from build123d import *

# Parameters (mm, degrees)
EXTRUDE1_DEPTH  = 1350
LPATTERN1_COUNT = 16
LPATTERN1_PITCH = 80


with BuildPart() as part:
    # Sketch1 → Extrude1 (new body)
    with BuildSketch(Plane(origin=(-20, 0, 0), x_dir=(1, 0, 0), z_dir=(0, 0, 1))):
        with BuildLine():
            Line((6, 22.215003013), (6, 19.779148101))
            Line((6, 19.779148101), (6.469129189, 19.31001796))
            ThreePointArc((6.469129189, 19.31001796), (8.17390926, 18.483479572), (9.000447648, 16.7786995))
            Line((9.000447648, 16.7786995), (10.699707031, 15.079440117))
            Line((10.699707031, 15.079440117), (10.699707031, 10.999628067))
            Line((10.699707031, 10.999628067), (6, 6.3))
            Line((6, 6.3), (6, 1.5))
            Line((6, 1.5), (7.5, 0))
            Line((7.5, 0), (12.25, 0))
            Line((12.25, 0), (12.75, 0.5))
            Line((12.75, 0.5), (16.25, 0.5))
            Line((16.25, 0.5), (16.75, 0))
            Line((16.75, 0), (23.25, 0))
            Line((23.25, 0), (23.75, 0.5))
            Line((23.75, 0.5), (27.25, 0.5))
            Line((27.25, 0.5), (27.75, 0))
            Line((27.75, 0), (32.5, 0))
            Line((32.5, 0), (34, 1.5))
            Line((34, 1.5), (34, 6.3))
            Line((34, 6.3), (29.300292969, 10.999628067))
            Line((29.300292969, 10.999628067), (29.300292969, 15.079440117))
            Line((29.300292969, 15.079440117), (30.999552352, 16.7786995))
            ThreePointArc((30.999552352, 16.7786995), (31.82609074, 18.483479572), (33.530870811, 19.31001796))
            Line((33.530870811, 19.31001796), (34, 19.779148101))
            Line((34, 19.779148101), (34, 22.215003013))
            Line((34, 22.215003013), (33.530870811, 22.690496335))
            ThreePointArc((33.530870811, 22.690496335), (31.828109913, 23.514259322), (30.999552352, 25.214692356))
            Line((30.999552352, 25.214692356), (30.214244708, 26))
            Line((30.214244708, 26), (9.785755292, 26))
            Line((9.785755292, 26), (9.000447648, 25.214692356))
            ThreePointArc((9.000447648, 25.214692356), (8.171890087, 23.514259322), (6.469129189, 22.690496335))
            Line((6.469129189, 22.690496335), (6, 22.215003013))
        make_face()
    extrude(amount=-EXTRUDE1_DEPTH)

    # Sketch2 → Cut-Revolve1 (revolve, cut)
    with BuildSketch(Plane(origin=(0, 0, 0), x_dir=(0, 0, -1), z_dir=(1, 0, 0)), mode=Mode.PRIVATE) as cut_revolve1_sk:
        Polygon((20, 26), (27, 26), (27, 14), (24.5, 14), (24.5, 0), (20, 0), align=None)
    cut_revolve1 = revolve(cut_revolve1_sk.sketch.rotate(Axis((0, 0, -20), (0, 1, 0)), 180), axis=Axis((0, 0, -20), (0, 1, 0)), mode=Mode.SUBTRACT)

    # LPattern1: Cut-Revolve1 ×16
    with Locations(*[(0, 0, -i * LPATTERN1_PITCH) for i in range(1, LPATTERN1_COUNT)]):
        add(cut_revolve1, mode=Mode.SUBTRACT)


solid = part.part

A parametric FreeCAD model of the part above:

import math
import FreeCAD as App
import Part
import Sketcher
from FreeCAD import Vector


def add_polygon(sketch, points):
    """Adds a closed chain of lines whose ends are joined by coincident constraints."""
    first, n = sketch.GeometryCount, len(points)
    for a, b in zip(points, points[1:] + points[:1]):
        sketch.addGeometry(Part.LineSegment(App.Vector(*a, 0), App.Vector(*b, 0)), False)
    for i in range(n):
        sketch.addConstraint(Sketcher.Constraint("Coincident", first + i, 2, first + (i + 1) % n, 1))

doc = App.newDocument("Part")
body = doc.addObject("PartDesign::Body", "Body")

sketch1 = doc.addObject("Sketcher::SketchObject", "Sketch")
body.addObject(sketch1)
sketch1.AttachmentSupport = (doc.XY_Plane, [""])
sketch1.MapMode = "FlatFace"
sketch1.addGeometry(Part.LineSegment(Vector(-14, 22.215003, 0), Vector(-14, 19.779148, 0)), False)
sketch1.addGeometry(Part.LineSegment(Vector(-14, 19.779148, 0), Vector(-13.530871, 19.310018, 0)), False)
sketch1.addGeometry(Part.ArcOfCircle(Part.Circle(Vector(-13.869629, 16.439941, 0), Vector(0, 0, 1), 2.889999), math.radians(6.731535), math.radians(83.268465)), False)
sketch1.addGeometry(Part.LineSegment(Vector(-10.999552, 16.778699, 0), Vector(-9.300293, 15.07944, 0)), False)
sketch1.addGeometry(Part.LineSegment(Vector(-9.300293, 15.07944, 0), Vector(-9.300293, 10.999628, 0)), False)
sketch1.addGeometry(Part.LineSegment(Vector(-9.300293, 10.999628, 0), Vector(-14, 6.3, 0)), False)
sketch1.addGeometry(Part.LineSegment(Vector(-14, 6.3, 0), Vector(-14, 1.5, 0)), False)
sketch1.addGeometry(Part.LineSegment(Vector(-14, 1.5, 0), Vector(-12.5, 0, 0)), False)
sketch1.addGeometry(Part.LineSegment(Vector(-12.5, 0, 0), Vector(-7.75, 0, 0)), False)
sketch1.addGeometry(Part.LineSegment(Vector(-7.75, 0, 0), Vector(-7.25, 0.5, 0)), False)
sketch1.addGeometry(Part.LineSegment(Vector(-7.25, 0.5, 0), Vector(-3.75, 0.5, 0)), False)
sketch1.addGeometry(Part.LineSegment(Vector(-3.75, 0.5, 0), Vector(-3.25, 0, 0)), False)
sketch1.addGeometry(Part.LineSegment(Vector(-3.25, 0, 0), Vector(3.25, 0, 0)), False)
sketch1.addGeometry(Part.LineSegment(Vector(3.25, 0, 0), Vector(3.75, 0.5, 0)), False)
sketch1.addGeometry(Part.LineSegment(Vector(3.75, 0.5, 0), Vector(7.25, 0.5, 0)), False)
sketch1.addGeometry(Part.LineSegment(Vector(7.25, 0.5, 0), Vector(7.75, 0, 0)), False)
sketch1.addGeometry(Part.LineSegment(Vector(7.75, 0, 0), Vector(12.5, 0, 0)), False)
sketch1.addGeometry(Part.LineSegment(Vector(12.5, 0, 0), Vector(14, 1.5, 0)), False)
sketch1.addGeometry(Part.LineSegment(Vector(14, 1.5, 0), Vector(14, 6.3, 0)), False)
sketch1.addGeometry(Part.LineSegment(Vector(14, 6.3, 0), Vector(9.300293, 10.999628, 0)), False)
sketch1.addGeometry(Part.LineSegment(Vector(9.300293, 10.999628, 0), Vector(9.300293, 15.07944, 0)), False)
sketch1.addGeometry(Part.LineSegment(Vector(9.300293, 15.07944, 0), Vector(10.999552, 16.778699, 0)), False)
sketch1.addGeometry(Part.ArcOfCircle(Part.Circle(Vector(13.869629, 16.439941, 0), Vector(0, 0, 1), 2.889999), math.radians(96.731535), math.radians(173.268465)), False)
sketch1.addGeometry(Part.LineSegment(Vector(13.530871, 19.310018, 0), Vector(14, 19.779148, 0)), False)
sketch1.addGeometry(Part.LineSegment(Vector(14, 19.779148, 0), Vector(14, 22.215003, 0)), False)
sketch1.addGeometry(Part.LineSegment(Vector(14, 22.215003, 0), Vector(13.530871, 22.690496, 0)), False)
sketch1.addGeometry(Part.ArcOfCircle(Part.Circle(Vector(13.868767, 25.560674, 0), Vector(0, 0, 1), 2.889999), math.radians(-173.124228), math.radians(-96.71433)), False)
sketch1.addGeometry(Part.LineSegment(Vector(10.999552, 25.214692, 0), Vector(10.214245, 26, 0)), False)
sketch1.addGeometry(Part.LineSegment(Vector(10.214245, 26, 0), Vector(-10.214245, 26, 0)), False)
sketch1.addGeometry(Part.LineSegment(Vector(-10.214245, 26, 0), Vector(-10.999552, 25.214692, 0)), False)
sketch1.addGeometry(Part.ArcOfCircle(Part.Circle(Vector(-13.868767, 25.560674, 0), Vector(0, 0, 1), 2.889999), math.radians(-83.28567), math.radians(-6.875772)), False)
sketch1.addGeometry(Part.LineSegment(Vector(-13.530871, 22.690496, 0), Vector(-14, 22.215003, 0)), False)
sketch1.addConstraint(Sketcher.Constraint("Coincident", 0, 2, 1, 1))
sketch1.addConstraint(Sketcher.Constraint("Coincident", 1, 2, 2, 2))
sketch1.addConstraint(Sketcher.Constraint("Coincident", 2, 1, 3, 1))
sketch1.addConstraint(Sketcher.Constraint("Coincident", 3, 2, 4, 1))
sketch1.addConstraint(Sketcher.Constraint("Coincident", 4, 2, 5, 1))
sketch1.addConstraint(Sketcher.Constraint("Coincident", 5, 2, 6, 1))
sketch1.addConstraint(Sketcher.Constraint("Coincident", 6, 2, 7, 1))
sketch1.addConstraint(Sketcher.Constraint("Coincident", 7, 2, 8, 1))
sketch1.addConstraint(Sketcher.Constraint("Coincident", 8, 2, 9, 1))
sketch1.addConstraint(Sketcher.Constraint("Coincident", 9, 2, 10, 1))
sketch1.addConstraint(Sketcher.Constraint("Coincident", 10, 2, 11, 1))
sketch1.addConstraint(Sketcher.Constraint("Coincident", 11, 2, 12, 1))
sketch1.addConstraint(Sketcher.Constraint("Coincident", 12, 2, 13, 1))
sketch1.addConstraint(Sketcher.Constraint("Coincident", 13, 2, 14, 1))
sketch1.addConstraint(Sketcher.Constraint("Coincident", 14, 2, 15, 1))
sketch1.addConstraint(Sketcher.Constraint("Coincident", 15, 2, 16, 1))
sketch1.addConstraint(Sketcher.Constraint("Coincident", 16, 2, 17, 1))
sketch1.addConstraint(Sketcher.Constraint("Coincident", 17, 2, 18, 1))
sketch1.addConstraint(Sketcher.Constraint("Coincident", 18, 2, 19, 1))
sketch1.addConstraint(Sketcher.Constraint("Coincident", 19, 2, 20, 1))
sketch1.addConstraint(Sketcher.Constraint("Coincident", 20, 2, 21, 1))
sketch1.addConstraint(Sketcher.Constraint("Coincident", 21, 2, 22, 2))
sketch1.addConstraint(Sketcher.Constraint("Coincident", 22, 1, 23, 1))
sketch1.addConstraint(Sketcher.Constraint("Coincident", 23, 2, 24, 1))
sketch1.addConstraint(Sketcher.Constraint("Coincident", 24, 2, 25, 1))
sketch1.addConstraint(Sketcher.Constraint("Coincident", 25, 2, 26, 2))
sketch1.addConstraint(Sketcher.Constraint("Coincident", 26, 1, 27, 1))
sketch1.addConstraint(Sketcher.Constraint("Coincident", 27, 2, 28, 1))
sketch1.addConstraint(Sketcher.Constraint("Coincident", 28, 2, 29, 1))
sketch1.addConstraint(Sketcher.Constraint("Coincident", 29, 2, 30, 2))
sketch1.addConstraint(Sketcher.Constraint("Coincident", 30, 1, 31, 1))
sketch1.addConstraint(Sketcher.Constraint("Coincident", 31, 2, 0, 1))
sketch1.addConstraint(Sketcher.Constraint("Vertical", 0))
sketch1.addConstraint(Sketcher.Constraint("Vertical", 4))
sketch1.addConstraint(Sketcher.Constraint("Vertical", 6))
sketch1.addConstraint(Sketcher.Constraint("Horizontal", 8))
sketch1.addConstraint(Sketcher.Constraint("Horizontal", 10))
sketch1.addConstraint(Sketcher.Constraint("Horizontal", 12))
sketch1.addConstraint(Sketcher.Constraint("Horizontal", 14))
sketch1.addConstraint(Sketcher.Constraint("Horizontal", 16))
sketch1.addConstraint(Sketcher.Constraint("Vertical", 18))
sketch1.addConstraint(Sketcher.Constraint("Vertical", 20))
sketch1.addConstraint(Sketcher.Constraint("Vertical", 24))
sketch1.addConstraint(Sketcher.Constraint("Horizontal", 28))
sketch1.addConstraint(Sketcher.Constraint("Equal", 2, 22))
sketch1.addConstraint(Sketcher.Constraint("Equal", 22, 26))
sketch1.addConstraint(Sketcher.Constraint("Equal", 26, 30))
sketch1.addConstraint(Sketcher.Constraint("Symmetric", 11, 2, 12, 2, -1, 1))
sketch1.addConstraint(Sketcher.Constraint("Symmetric", 8, 2, 15, 2, -1, 1))
sketch1.addConstraint(Sketcher.Constraint("Symmetric", 2, 3, 22, 3, -2))
sketch1.addConstraint(Sketcher.Constraint("Symmetric", 26, 3, 30, 3, -2))
sketch1.addConstraint(Sketcher.Constraint("Symmetric", 10, 2, 13, 2, -2))
sketch1.addConstraint(Sketcher.Constraint("Symmetric", 7, 2, 16, 2, -2))
sketch1.addConstraint(Sketcher.Constraint("Symmetric", 6, 2, 17, 2, -2))
sketch1.addConstraint(Sketcher.Constraint("Symmetric", 4, 2, 19, 2, -2))
sketch1.addConstraint(Sketcher.Constraint("Symmetric", 0, 2, 23, 2, -2))
sketch1.addConstraint(Sketcher.Constraint("Parallel", 1, 3))
sketch1.addConstraint(Sketcher.Constraint("Parallel", 3, 7))
sketch1.addConstraint(Sketcher.Constraint("Perpendicular", 7, 9))
sketch1.addConstraint(Sketcher.Constraint("Perpendicular", 9, 11))
sketch1.addConstraint(Sketcher.Constraint("Perpendicular", 11, 13))
sketch1.addConstraint(Sketcher.Constraint("Perpendicular", 13, 15))
sketch1.addConstraint(Sketcher.Constraint("Parallel", 17, 21))
sketch1.addConstraint(Sketcher.Constraint("Parallel", 21, 23))
sketch1.addConstraint(Sketcher.Constraint("Perpendicular", 23, 27))
sketch1.addConstraint(Sketcher.Constraint("Perpendicular", 27, 29))
sketch1.addConstraint(Sketcher.Constraint("Horizontal", 5, 2, 18, 2))
sketch1.addConstraint(Sketcher.Constraint("Horizontal", 3, 2, 20, 2))
sketch1.addConstraint(Sketcher.Constraint("Horizontal", 26, 1, 29, 2))
sketch1.addConstraint(Sketcher.Constraint("Horizontal", 25, 2, 30, 1))
sketch1.addConstraint(Sketcher.Constraint("Horizontal", 24, 2, 31, 2))
sketch1.addConstraint(Sketcher.Constraint("Vertical", 0, 2, 5, 2))
sketch1.addConstraint(Sketcher.Constraint("Vertical", 22, 1, 25, 2))
sketch1.addConstraint(Sketcher.Constraint("Vertical", 21, 2, 26, 1))
sketch1.addConstraint(Sketcher.Constraint("Radius", 2, 2.889999))
sketch1.addConstraint(Sketcher.Constraint("DistanceX", 10, 1, 10, 2, 3.5))
sketch1.addConstraint(Sketcher.Constraint("DistanceX", 12, 1, 12, 2, 6.5))
sketch1.addConstraint(Sketcher.Constraint("DistanceY", 6, 2, 6, 1, 4.8))
sketch1.addConstraint(Sketcher.Constraint("DistanceX", 0, 2, -1, 1, 14.0))
sketch1.addConstraint(Sketcher.Constraint("DistanceY", -1, 1, 27, 2, 26.0))
sketch1.addConstraint(Sketcher.Constraint("DistanceY", 9, 2, 6, 2, 1.0))
sketch1.addConstraint(Sketcher.Constraint("DistanceX", 8, 2, 10, 2, 4.0))
sketch1.addConstraint(Sketcher.Constraint("DistanceX", 28, 2, 28, 1, 20.428489))
sketch1.addConstraint(Sketcher.Constraint("DistanceY", -1, 1, 2, 1, 16.7787))
sketch1.addConstraint(Sketcher.Constraint("DistanceX", 1, 2, 22, 3, 27.4005))
sketch1.addConstraint(Sketcher.Constraint("DistanceY", 3, 2, 2, 3, 1.360501))
sketch1.addConstraint(Sketcher.Constraint("Distance", 1, 0.66345))
sketch1.addConstraint(Sketcher.Constraint("DistanceY", 0, 2, 0, 1, 2.435855))
sketch1.addConstraint(Sketcher.Constraint("DistanceY", 4, 2, 4, 1, 4.079812))
sketch1.addConstraint(Sketcher.Constraint("DistanceY", -1, 1, 2, 3, 16.439941))
sketch1.addConstraint(Sketcher.Constraint("DistanceX", 26, 3, 22, 3, 0.000862))
pad1 = doc.addObject("PartDesign::Pad", "Pad")
body.addObject(pad1)
pad1.Profile = sketch1
pad1.Length = 1350
pad1.Reversed = True

sketch2 = doc.addObject("Sketcher::SketchObject", "Sketch001")
body.addObject(sketch2)
sketch2.AttachmentSupport = (doc.YZ_Plane, [""])
sketch2.MapMode = "FlatFace"
add_polygon(sketch2, [(26, -27), (26, -20), (0, -20), (0, -24.5), (14, -24.5), (14, -27)])
sketch2.addGeometry(Part.LineSegment(Vector(0, -20, 0), Vector(26, -20, 0)), True)
sketch2.addConstraint(Sketcher.Constraint("Vertical", 0))
sketch2.addConstraint(Sketcher.Constraint("Horizontal", 1))
sketch2.addConstraint(Sketcher.Constraint("Vertical", 2))
sketch2.addConstraint(Sketcher.Constraint("Horizontal", 3))
sketch2.addConstraint(Sketcher.Constraint("Vertical", 4))
sketch2.addConstraint(Sketcher.Constraint("Horizontal", 5))
sketch2.addConstraint(Sketcher.Constraint("Horizontal", 6))
sketch2.addConstraint(Sketcher.Constraint("Coincident", 6, 1, 1, 2))
sketch2.addConstraint(Sketcher.Constraint("PointOnObject", 1, 2, -2))
sketch2.addConstraint(Sketcher.Constraint("Vertical", 5, 2, 6, 2))
sketch2.addConstraint(Sketcher.Constraint("DistanceX", 1, 2, 1, 1, 26.0))
sketch2.addConstraint(Sketcher.Constraint("DistanceX", 3, 1, 3, 2, 14.0))
sketch2.addConstraint(Sketcher.Constraint("DistanceY", 0, 1, 0, 2, 7.0))
sketch2.addConstraint(Sketcher.Constraint("DistanceY", 2, 2, 2, 1, 4.5))
sketch2.addConstraint(Sketcher.Constraint("DistanceY", 0, 2, -1, 1, 20.0))
groove = doc.addObject("PartDesign::Groove", "Groove")
body.addObject(groove)
groove.Profile = sketch2
groove.ReferenceAxis = (sketch2, ["Axis0"])
groove.Angle = 360
doc.recompute()

linearpattern = doc.addObject("PartDesign::LinearPattern", "LinearPattern")
body.addObject(linearpattern)
linearpattern.Originals = [groove]
linearpattern.Direction = (doc.Z_Axis, [""])
linearpattern.Mode = "offset"
linearpattern.Offset = 80
linearpattern.Occurrences = 16
linearpattern.Reversed = True
body.Tip = linearpattern

doc.recompute()
